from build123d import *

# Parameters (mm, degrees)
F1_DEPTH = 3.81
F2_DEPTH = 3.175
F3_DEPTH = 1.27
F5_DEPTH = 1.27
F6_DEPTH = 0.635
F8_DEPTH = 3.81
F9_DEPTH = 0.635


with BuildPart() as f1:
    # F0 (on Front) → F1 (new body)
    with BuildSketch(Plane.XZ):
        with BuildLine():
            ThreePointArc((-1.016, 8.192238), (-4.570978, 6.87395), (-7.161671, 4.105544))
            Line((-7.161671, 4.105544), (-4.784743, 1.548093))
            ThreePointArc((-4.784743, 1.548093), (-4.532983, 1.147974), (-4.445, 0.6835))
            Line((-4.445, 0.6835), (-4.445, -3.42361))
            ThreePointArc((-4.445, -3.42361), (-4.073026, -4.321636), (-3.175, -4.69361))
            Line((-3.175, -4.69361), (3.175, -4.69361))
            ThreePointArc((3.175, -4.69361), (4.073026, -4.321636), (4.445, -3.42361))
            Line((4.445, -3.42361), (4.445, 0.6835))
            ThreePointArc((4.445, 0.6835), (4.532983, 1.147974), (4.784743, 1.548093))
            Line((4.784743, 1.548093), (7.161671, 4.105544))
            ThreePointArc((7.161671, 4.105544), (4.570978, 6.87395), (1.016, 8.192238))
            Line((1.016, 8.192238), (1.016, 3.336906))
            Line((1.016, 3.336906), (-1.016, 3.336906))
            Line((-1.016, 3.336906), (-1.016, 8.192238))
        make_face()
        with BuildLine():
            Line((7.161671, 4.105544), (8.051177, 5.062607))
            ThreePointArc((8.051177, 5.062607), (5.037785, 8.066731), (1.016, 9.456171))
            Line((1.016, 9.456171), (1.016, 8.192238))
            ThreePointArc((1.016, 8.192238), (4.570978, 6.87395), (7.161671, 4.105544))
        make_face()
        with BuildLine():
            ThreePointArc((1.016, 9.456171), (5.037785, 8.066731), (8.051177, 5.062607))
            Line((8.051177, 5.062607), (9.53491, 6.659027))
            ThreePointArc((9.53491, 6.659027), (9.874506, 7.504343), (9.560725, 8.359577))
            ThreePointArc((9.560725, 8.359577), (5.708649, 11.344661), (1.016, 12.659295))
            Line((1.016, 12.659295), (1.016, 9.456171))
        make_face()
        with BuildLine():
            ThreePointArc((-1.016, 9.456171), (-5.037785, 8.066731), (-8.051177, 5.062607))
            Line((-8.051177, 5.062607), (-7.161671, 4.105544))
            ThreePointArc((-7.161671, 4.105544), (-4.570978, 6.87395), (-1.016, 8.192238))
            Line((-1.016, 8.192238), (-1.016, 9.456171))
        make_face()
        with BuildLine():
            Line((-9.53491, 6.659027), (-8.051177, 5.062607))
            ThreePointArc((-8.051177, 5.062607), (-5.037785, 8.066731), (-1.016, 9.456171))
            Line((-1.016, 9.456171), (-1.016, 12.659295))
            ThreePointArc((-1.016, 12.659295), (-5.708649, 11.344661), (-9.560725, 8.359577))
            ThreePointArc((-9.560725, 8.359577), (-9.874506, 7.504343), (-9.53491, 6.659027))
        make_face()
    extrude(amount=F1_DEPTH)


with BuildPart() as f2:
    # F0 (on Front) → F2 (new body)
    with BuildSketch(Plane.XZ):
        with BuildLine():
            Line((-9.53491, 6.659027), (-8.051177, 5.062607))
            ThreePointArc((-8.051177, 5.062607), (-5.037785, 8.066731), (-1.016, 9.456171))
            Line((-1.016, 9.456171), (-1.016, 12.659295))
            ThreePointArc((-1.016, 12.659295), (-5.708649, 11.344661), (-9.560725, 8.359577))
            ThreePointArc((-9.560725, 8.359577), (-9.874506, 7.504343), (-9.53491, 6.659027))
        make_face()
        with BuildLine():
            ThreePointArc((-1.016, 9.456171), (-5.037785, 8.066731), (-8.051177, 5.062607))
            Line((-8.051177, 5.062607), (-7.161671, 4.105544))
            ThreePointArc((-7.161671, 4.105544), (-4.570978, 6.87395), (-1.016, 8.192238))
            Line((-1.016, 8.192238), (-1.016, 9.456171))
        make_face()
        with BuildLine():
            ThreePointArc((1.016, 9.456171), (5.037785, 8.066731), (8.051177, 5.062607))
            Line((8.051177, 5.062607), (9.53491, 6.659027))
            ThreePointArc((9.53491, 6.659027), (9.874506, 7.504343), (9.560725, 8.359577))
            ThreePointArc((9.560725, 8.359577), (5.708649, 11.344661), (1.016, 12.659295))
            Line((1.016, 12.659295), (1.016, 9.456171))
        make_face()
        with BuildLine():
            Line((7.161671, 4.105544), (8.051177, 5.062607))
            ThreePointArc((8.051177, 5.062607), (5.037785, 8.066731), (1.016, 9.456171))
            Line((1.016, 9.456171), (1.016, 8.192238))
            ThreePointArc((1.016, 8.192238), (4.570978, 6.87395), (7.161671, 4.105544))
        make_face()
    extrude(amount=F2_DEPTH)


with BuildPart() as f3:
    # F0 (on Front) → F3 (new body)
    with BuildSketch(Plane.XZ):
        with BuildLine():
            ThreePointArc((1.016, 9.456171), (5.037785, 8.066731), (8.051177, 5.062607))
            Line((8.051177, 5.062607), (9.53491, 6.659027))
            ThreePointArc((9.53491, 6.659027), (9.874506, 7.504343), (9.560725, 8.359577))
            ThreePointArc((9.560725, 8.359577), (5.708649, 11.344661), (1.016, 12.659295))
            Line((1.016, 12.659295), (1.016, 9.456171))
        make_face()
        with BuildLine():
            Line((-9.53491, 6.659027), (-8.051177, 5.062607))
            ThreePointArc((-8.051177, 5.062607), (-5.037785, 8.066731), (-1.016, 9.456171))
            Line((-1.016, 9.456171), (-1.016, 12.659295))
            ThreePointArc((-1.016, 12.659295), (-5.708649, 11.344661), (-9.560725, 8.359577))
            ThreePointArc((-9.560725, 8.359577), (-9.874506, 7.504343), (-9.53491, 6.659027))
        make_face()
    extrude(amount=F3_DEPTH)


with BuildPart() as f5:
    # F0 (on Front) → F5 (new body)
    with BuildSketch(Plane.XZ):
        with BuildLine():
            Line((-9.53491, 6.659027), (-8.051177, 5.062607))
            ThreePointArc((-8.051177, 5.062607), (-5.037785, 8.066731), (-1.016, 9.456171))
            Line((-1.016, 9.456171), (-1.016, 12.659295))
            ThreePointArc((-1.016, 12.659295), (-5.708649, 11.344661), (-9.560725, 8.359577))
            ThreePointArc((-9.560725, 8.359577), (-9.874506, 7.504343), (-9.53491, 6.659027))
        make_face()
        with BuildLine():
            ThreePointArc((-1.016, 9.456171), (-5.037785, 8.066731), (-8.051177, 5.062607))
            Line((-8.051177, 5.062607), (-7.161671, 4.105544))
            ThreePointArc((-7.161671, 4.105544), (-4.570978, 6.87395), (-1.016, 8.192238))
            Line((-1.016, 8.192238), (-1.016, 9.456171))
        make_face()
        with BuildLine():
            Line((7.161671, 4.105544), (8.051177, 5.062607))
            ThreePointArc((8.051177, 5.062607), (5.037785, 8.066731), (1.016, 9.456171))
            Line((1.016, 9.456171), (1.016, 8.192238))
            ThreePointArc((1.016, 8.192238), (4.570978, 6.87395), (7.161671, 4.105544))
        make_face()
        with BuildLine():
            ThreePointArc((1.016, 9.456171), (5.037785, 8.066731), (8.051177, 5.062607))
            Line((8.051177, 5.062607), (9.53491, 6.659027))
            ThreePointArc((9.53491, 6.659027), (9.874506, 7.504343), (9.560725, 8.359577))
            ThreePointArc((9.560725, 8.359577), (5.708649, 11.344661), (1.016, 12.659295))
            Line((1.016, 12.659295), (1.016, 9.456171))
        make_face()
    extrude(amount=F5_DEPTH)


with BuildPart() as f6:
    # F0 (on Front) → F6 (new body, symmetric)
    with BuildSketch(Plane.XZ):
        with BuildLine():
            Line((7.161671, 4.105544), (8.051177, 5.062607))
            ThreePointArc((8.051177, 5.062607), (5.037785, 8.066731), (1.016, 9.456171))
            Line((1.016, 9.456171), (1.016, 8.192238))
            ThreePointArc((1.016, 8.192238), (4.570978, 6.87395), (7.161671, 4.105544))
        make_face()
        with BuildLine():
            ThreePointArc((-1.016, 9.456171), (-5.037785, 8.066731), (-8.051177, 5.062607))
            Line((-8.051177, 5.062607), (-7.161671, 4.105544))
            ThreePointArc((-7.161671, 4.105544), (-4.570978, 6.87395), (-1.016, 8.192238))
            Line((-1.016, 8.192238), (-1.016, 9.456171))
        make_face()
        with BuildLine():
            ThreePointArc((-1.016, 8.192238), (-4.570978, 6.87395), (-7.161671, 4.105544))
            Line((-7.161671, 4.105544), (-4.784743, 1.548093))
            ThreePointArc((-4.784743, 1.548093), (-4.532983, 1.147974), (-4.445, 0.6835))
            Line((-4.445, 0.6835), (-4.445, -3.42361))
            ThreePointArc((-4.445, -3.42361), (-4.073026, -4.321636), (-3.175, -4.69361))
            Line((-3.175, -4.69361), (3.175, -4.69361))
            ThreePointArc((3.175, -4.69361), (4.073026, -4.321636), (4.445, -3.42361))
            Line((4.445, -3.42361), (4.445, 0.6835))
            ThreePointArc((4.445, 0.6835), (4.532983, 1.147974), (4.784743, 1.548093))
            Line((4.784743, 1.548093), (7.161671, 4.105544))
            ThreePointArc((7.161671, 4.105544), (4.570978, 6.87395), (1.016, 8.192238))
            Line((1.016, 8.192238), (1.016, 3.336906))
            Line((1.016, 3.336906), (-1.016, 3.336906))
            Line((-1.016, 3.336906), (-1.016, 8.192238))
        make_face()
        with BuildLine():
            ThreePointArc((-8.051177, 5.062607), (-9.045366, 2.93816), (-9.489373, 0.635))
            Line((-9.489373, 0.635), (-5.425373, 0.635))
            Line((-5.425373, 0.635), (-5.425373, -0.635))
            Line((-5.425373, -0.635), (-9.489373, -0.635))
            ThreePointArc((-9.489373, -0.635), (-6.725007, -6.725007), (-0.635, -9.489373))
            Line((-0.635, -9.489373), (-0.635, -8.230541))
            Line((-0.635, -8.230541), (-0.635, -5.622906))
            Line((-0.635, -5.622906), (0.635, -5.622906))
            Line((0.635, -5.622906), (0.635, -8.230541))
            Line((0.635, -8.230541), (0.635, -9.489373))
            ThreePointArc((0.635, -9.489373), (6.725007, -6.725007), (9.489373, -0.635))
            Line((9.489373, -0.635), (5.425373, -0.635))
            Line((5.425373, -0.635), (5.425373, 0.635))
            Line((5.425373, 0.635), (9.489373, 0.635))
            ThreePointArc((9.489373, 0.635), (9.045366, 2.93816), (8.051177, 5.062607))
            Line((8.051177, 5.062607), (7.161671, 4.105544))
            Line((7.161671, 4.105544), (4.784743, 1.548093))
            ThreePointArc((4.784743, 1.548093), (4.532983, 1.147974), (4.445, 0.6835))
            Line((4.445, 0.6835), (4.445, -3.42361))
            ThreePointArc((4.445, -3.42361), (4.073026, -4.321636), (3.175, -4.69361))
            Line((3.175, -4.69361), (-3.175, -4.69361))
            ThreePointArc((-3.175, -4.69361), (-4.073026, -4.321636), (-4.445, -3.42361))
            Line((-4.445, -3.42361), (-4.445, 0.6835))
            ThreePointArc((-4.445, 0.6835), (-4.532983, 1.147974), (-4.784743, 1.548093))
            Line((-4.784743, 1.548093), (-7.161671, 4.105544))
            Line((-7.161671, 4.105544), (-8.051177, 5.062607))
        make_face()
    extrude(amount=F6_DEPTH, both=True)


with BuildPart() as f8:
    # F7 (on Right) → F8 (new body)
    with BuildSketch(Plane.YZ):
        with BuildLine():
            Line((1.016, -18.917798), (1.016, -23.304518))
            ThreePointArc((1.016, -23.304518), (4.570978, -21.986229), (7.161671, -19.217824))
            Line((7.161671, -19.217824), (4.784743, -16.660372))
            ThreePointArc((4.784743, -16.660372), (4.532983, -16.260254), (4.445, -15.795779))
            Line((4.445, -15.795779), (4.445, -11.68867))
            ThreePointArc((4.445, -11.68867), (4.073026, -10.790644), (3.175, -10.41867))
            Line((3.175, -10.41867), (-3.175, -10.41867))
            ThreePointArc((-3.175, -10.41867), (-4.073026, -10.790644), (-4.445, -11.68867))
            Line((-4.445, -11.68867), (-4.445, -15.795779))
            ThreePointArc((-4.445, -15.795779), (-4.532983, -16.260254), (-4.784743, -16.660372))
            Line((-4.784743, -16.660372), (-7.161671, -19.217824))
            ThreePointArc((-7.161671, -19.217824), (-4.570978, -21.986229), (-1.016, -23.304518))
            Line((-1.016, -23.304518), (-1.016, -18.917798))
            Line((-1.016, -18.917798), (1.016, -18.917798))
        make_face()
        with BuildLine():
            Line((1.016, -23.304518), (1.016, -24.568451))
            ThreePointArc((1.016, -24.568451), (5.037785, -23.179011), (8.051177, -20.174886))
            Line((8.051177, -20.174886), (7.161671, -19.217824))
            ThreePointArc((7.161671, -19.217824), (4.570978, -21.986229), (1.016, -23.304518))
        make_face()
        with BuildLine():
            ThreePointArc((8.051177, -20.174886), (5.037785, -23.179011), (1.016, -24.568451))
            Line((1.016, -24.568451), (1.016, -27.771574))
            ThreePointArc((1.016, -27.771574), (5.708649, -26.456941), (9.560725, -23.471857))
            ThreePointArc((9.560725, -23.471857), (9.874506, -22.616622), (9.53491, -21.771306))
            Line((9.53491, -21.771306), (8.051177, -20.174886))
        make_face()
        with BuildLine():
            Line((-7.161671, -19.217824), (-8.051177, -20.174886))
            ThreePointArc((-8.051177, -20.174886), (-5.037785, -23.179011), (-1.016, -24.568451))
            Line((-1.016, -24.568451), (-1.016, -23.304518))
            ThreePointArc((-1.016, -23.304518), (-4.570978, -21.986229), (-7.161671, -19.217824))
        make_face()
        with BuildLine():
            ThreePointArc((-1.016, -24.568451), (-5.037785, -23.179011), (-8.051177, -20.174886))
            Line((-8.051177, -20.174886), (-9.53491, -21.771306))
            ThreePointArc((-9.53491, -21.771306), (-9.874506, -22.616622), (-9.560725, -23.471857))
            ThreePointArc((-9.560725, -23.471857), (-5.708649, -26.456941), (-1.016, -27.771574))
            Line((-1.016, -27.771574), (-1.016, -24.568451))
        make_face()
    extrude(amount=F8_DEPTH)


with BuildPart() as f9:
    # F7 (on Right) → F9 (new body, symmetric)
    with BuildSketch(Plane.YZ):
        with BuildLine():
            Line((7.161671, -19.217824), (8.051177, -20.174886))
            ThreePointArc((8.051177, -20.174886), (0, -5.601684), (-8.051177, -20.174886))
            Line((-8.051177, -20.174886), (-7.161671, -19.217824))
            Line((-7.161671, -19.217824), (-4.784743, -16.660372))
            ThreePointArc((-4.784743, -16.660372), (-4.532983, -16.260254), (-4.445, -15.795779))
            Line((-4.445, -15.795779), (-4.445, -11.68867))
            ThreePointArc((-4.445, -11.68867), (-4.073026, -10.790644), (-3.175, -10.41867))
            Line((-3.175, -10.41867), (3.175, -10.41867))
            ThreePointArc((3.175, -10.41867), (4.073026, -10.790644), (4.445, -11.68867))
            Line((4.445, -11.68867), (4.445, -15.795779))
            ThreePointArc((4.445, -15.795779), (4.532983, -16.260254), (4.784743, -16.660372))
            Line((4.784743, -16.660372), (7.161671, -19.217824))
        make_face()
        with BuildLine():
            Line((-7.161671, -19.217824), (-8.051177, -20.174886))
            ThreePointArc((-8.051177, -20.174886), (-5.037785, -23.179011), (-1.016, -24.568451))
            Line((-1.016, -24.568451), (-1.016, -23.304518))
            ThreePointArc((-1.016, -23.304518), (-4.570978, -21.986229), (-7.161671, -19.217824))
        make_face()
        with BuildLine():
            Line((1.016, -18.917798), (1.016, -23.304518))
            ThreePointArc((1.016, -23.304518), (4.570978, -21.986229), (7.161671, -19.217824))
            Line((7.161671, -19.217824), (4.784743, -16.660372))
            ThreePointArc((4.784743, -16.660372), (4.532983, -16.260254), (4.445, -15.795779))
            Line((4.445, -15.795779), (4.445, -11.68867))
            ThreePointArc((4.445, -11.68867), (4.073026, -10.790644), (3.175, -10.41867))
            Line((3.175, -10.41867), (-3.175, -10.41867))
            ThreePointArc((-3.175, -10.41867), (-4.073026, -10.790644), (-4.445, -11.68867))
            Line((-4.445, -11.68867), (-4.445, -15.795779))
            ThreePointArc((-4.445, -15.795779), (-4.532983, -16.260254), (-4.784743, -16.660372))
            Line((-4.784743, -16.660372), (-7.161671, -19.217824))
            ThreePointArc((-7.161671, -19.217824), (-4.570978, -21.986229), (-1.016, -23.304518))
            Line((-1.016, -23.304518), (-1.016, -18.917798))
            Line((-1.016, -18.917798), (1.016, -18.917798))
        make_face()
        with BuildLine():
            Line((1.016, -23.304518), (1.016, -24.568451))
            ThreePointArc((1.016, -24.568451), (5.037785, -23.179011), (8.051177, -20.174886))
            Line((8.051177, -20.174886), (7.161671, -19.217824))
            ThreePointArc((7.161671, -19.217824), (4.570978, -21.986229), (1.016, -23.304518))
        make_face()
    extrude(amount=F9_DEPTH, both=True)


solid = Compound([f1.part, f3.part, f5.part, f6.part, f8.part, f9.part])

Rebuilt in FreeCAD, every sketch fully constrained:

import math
import FreeCAD as App
import Part
import Sketcher
from FreeCAD import Vector
Q = App.Units.Quantity

doc = App.newDocument("Part")
body = doc.addObject("PartDesign::Body", "Body")

sketch1 = doc.addObject("Sketcher::SketchObject", "Sketch")
body.addObject(sketch1)
sketch1.AttachmentSupport = (doc.XZ_Plane, [""])
sketch1.MapMode = "FlatFace"
sketch1.addGeometry([
    Part.LineSegment(Vector(-7.2, 4.1, 0), Vector(-4.8, 1.5, 0)),
    Part.ArcOfCircle(Part.Circle(Vector(-5.7, 0.7, 0), Vector(0, 0, 1), 1.3), math.radians(0), math.radians(43)),
    Part.LineSegment(Vector(-4.4, 0.7, 0), Vector(-4.4, -3.4, 0)),
    Part.ArcOfCircle(Part.Circle(Vector(-3.2, -3.4, 0), Vector(0, 0, 1), 1.3), math.radians(180), math.radians(270)),
    Part.LineSegment(Vector(-3.2, -4.7, 0), Vector(3.2, -4.7, 0)),
    Part.ArcOfCircle(Part.Circle(Vector(3.2, -3.4, 0), Vector(0, 0, 1), 1.3), math.radians(-90), math.radians(0)),
    Part.LineSegment(Vector(4.4, -3.4, 0), Vector(4.4, 0.7, 0)),
    Part.ArcOfCircle(Part.Circle(Vector(5.7, 0.7, 0), Vector(0, 0, 1), 1.3), math.radians(137), math.radians(180)),
    Part.LineSegment(Vector(4.8, 1.5, 0), Vector(7.2, 4.1, 0)),
    Part.LineSegment(Vector(7.2, 4.1, 0), Vector(8.1, 5.1, 0)),
    Part.LineSegment(Vector(8.1, 5.1, 0), Vector(9.5, 6.7, 0)),
    Part.ArcOfCircle(Part.Circle(Vector(8.6, 7.5, 0), Vector(0, 0, 1), 1.3), math.radians(-43), math.radians(41)),
    Part.ArcOfCircle(Part.Circle(Vector(0, 0, 0), Vector(0, 0, 1), 12.7), math.radians(41), math.radians(85)),
    Part.LineSegment(Vector(1, 12.7, 0), Vector(1, 3.3, 0)),
    Part.LineSegment(Vector(1, 3.3, 0), Vector(-1, 3.3, 0)),
    Part.LineSegment(Vector(-1, 3.3, 0), Vector(-1, 12.7, 0)),
    Part.ArcOfCircle(Part.Circle(Vector(0, 0, 0), Vector(0, 0, 1), 12.7), math.radians(95), math.radians(139)),
    Part.ArcOfCircle(Part.Circle(Vector(-8.6, 7.5, 0), Vector(0, 0, 1), 1.3), math.radians(139), math.radians(223)),
    Part.LineSegment(Vector(-9.5, 6.7, 0), Vector(-8.1, 5.1, 0)),
    Part.LineSegment(Vector(-8.1, 5.1, 0), Vector(-7.2, 4.1, 0)),
], False)
sketch1.addConstraint([
    Sketcher.Constraint("Tangent", 0, 2, 1, 2),
    Sketcher.Constraint("Tangent", 1, 1, 2, 1),
    Sketcher.Constraint("Tangent", 2, 2, 3, 1),
    Sketcher.Constraint("Tangent", 3, 2, 4, 1),
    Sketcher.Constraint("Tangent", 4, 2, 5, 1),
    Sketcher.Constraint("Tangent", 5, 2, 6, 1),
    Sketcher.Constraint("Tangent", 6, 2, 7, 2),
    Sketcher.Constraint("Tangent", 7, 1, 8, 1),
    Sketcher.Constraint("Coincident", 8, 2, 9, 1),
    Sketcher.Constraint("Coincident", 9, 2, 10, 1),
    Sketcher.Constraint("Tangent", 10, 2, 11, 1),
    Sketcher.Constraint("Tangent", 11, 2, 12, 1),
    Sketcher.Constraint("Coincident", 12, 2, 13, 1),
    Sketcher.Constraint("Coincident", 13, 2, 14, 1),
    Sketcher.Constraint("Coincident", 14, 2, 15, 1),
    Sketcher.Constraint("Coincident", 15, 2, 16, 1),
    Sketcher.Constraint("Tangent", 16, 2, 17, 1),
    Sketcher.Constraint("Tangent", 17, 2, 18, 1),
    Sketcher.Constraint("Coincident", 18, 2, 19, 1),
    Sketcher.Constraint("Coincident", 19, 2, 0, 1),
    Sketcher.Constraint("Vertical", 2),
    Sketcher.Constraint("Horizontal", 4),
    Sketcher.Constraint("Vertical", 6),
    Sketcher.Constraint("Vertical", 13),
    Sketcher.Constraint("Horizontal", 14),
    Sketcher.Constraint("Vertical", 15),
    Sketcher.Constraint("Coincident", 12, 3, -1, 1),
    Sketcher.Constraint("Coincident", 16, 3, -1, 1),
    Sketcher.Constraint("Equal", 3, 5),
    Sketcher.Constraint("Equal", 1, 7),
    Sketcher.Constraint("Equal", 5, 11),
    Sketcher.Constraint("Equal", 12, 16),
    Sketcher.Constraint("Equal", 11, 17),
    Sketcher.Constraint("Symmetric", 1, 3, 7, 3, -2),
    Sketcher.Constraint("Symmetric", 10, 2, 17, 2, -2),
    Sketcher.Constraint("Symmetric", 8, 2, 19, 2, -2),
    Sketcher.Constraint("Parallel", 8, 9),
    Sketcher.Constraint("Parallel", 9, 10),
    Sketcher.Constraint("Horizontal", 12, 2, 15, 2),
    Sketcher.Constraint("Horizontal", 9, 2, 18, 2),
    Sketcher.Constraint("Radius", 12, Q("0.4999998 in")),
    Sketcher.Constraint("Radius", 1, Q("0.0499998 in")),
    Sketcher.Constraint("Radius", 3, Q("0.0499999 in")),
    Sketcher.Constraint("DistanceX", 4, 1, 4, 2, Q("0.25 in")),
    Sketcher.Constraint("DistanceX", 14, 2, 14, 1, Q("0.08 in")),
    Sketcher.Constraint("DistanceY", 2, 2, 2, 1, Q("4.10711 mm")),
    Sketcher.Constraint("DistanceY", 13, 2, 13, 1, Q("9.322389 mm")),
    Sketcher.Constraint("DistanceY", -1, 1, 1, 3, Q("0.683501 mm")),
    Sketcher.Constraint("DistanceY", -1, 1, 11, 3, Q("7.52362 mm")),
    Sketcher.Constraint("DistanceX", -1, 1, 8, 2, Q("7.161671 mm")),
    Sketcher.Constraint("DistanceX", 7, 3, 9, 2, Q("2.336181 mm")),
])
pad1 = doc.addObject("PartDesign::Pad", "Pad")
body.addObject(pad1)
pad1.Profile = sketch1
pad1.Length = Q("0.15 in")
body2 = doc.addObject("PartDesign::Body", "Body001")
body2.AllowCompound = True

sketch2 = doc.addObject("Sketcher::SketchObject", "Sketch001")
body2.addObject(sketch2)
sketch2.AttachmentSupport = (doc.getObject("XZ_Plane001"), [""])
sketch2.MapMode = "FlatFace"
sketch2.addGeometry([
    Part.LineSegment(Vector(-9.5, 6.7, 0), Vector(-8.1, 5.1, 0)),
    Part.LineSegment(Vector(-8.1, 5.1, 0), Vector(-7.2, 4.1, 0)),
    Part.ArcOfCircle(Part.Circle(Vector(0, 0, 0), Vector(0, 0, 1), 8.3), math.radians(97), math.radians(150)),
    Part.LineSegment(Vector(-1, 8.2, 0), Vector(-1, 12.7, 0)),
    Part.ArcOfCircle(Part.Circle(Vector(0, 0, 0), Vector(0, 0, 1), 12.7), math.radians(95), math.radians(139)),
    Part.ArcOfCircle(Part.Circle(Vector(-8.6, 7.5, 0), Vector(0, 0, 1), 1.3), math.radians(139), math.radians(223)),
    Part.LineSegment(Vector(8.1, 5.1, 0), Vector(9.5, 6.7, 0)),
    Part.ArcOfCircle(Part.Circle(Vector(8.6, 7.5, 0), Vector(0, 0, 1), 1.3), math.radians(-43), math.radians(41)),
    Part.ArcOfCircle(Part.Circle(Vector(0, 0, 0), Vector(0, 0, 1), 12.7), math.radians(41), math.radians(85)),
    Part.LineSegment(Vector(1, 12.7, 0), Vector(1, 8.2, 0)),
    Part.ArcOfCircle(Part.Circle(Vector(0, 0, 0), Vector(0, 0, 1), 8.3), math.radians(30), math.radians(83)),
    Part.LineSegment(Vector(7.2, 4.1, 0), Vector(8.1, 5.1, 0)),
], False)
sketch2.addConstraint([
    Sketcher.Constraint("Coincident", 0, 2, 1, 1),
    Sketcher.Constraint("Coincident", 1, 2, 2, 2),
    Sketcher.Constraint("Coincident", 2, 1, 3, 1),
    Sketcher.Constraint("Coincident", 3, 2, 4, 1),
    Sketcher.Constraint("Tangent", 4, 2, 5, 1),
    Sketcher.Constraint("Tangent", 5, 2, 0, 1),
    Sketcher.Constraint("Tangent", 6, 2, 7, 1),
    Sketcher.Constraint("Tangent", 7, 2, 8, 1),
    Sketcher.Constraint("Coincident", 8, 2, 9, 1),
    Sketcher.Constraint("Coincident", 9, 2, 10, 2),
    Sketcher.Constraint("Coincident", 10, 1, 11, 1),
    Sketcher.Constraint("Coincident", 11, 2, 6, 1),
    Sketcher.Constraint("Vertical", 3),
    Sketcher.Constraint("Vertical", 9),
    Sketcher.Constraint("Coincident", 2, 3, -1, 1),
    Sketcher.Constraint("Coincident", 4, 3, -1, 1),
    Sketcher.Constraint("Coincident", 8, 3, -1, 1),
    Sketcher.Constraint("Coincident", 10, 3, -1, 1),
    Sketcher.Constraint("Equal", 5, 7),
    Sketcher.Constraint("Equal", 4, 8),
    Sketcher.Constraint("Equal", 2, 10),
    Sketcher.Constraint("Symmetric", 5, 2, 6, 2, -2),
    Sketcher.Constraint("Parallel", 0, 1),
    Sketcher.Constraint("Parallel", 6, 11),
    Sketcher.Constraint("Horizontal", 3, 2, 8, 2),
    Sketcher.Constraint("Horizontal", 0, 2, 11, 2),
    Sketcher.Constraint("Radius", 4, Q("0.4999998 in")),
    Sketcher.Constraint("Radius", 5, Q("0.05 in")),
    Sketcher.Constraint("Radius", 2, Q("0.3249998 in")),
    Sketcher.Constraint("DistanceX", 2, 1, -1, 1, Q("0.04 in")),
    Sketcher.Constraint("DistanceY", -1, 1, 5, 3, Q("7.52362 mm")),
    Sketcher.Constraint("DistanceX", 1, 2, -1, 1, Q("7.161671 mm")),
    Sketcher.Constraint("DistanceX", 0, 2, 8, 3, Q("8.051178 mm")),
])
pad2 = doc.addObject("PartDesign::Pad", "Pad001")
body2.addObject(pad2)
pad2.Profile = sketch2
pad2.Length = Q("0.125 in")
body3 = doc.addObject("PartDesign::Body", "Body002")
body3.AllowCompound = True

sketch3 = doc.addObject("Sketcher::SketchObject", "Sketch002")
body3.addObject(sketch3)
sketch3.AttachmentSupport = (doc.getObject("XZ_Plane002"), [""])
sketch3.MapMode = "FlatFace"
sketch3.addGeometry([
    Part.ArcOfCircle(Part.Circle(Vector(0, 0, 0), Vector(0, 0, 1), 9.5), math.radians(32), math.radians(84)),
    Part.LineSegment(Vector(8.1, 5.1, 0), Vector(9.5, 6.7, 0)),
    Part.ArcOfCircle(Part.Circle(Vector(8.6, 7.5, 0), Vector(0, 0, 1), 1.3), math.radians(-43), math.radians(41)),
    Part.ArcOfCircle(Part.Circle(Vector(0, 0, 0), Vector(0, 0, 1), 12.7), math.radians(41), math.radians(85)),
    Part.LineSegment(Vector(1, 12.7, 0), Vector(1, 9.5, 0)),
    Part.LineSegment(Vector(-9.5, 6.7, 0), Vector(-8.1, 5.1, 0)),
    Part.ArcOfCircle(Part.Circle(Vector(0, 0, 0), Vector(0, 0, 1), 9.5), math.radians(96), math.radians(148)),
    Part.LineSegment(Vector(-1, 9.5, 0), Vector(-1, 12.7, 0)),
    Part.ArcOfCircle(Part.Circle(Vector(0, 0, 0), Vector(0, 0, 1), 12.7), math.radians(95), math.radians(139)),
    Part.ArcOfCircle(Part.Circle(Vector(-8.6, 7.5, 0), Vector(0, 0, 1), 1.3), math.radians(139), math.radians(223)),
], False)
sketch3.addConstraint([
    Sketcher.Constraint("Coincident", 0, 1, 1, 1),
    Sketcher.Constraint("Tangent", 1, 2, 2, 1),
    Sketcher.Constraint("Tangent", 2, 2, 3, 1),
    Sketcher.Constraint("Coincident", 3, 2, 4, 1),
    Sketcher.Constraint("Coincident", 4, 2, 0, 2),
    Sketcher.Constraint("Coincident", 5, 2, 6, 2),
    Sketcher.Constraint("Coincident", 6, 1, 7, 1),
    Sketcher.Constraint("Coincident", 7, 2, 8, 1),
    Sketcher.Constraint("Tangent", 8, 2, 9, 1),
    Sketcher.Constraint("Tangent", 9, 2, 5, 1),
    Sketcher.Constraint("Vertical", 4),
    Sketcher.Constraint("Vertical", 7),
    Sketcher.Constraint("Coincident", 0, 3, -1, 1),
    Sketcher.Constraint("Coincident", 3, 3, -1, 1),
    Sketcher.Constraint("Coincident", 6, 3, -1, 1),
    Sketcher.Constraint("Coincident", 8, 3, -1, 1),
    Sketcher.Constraint("Equal", 0, 6),
    Sketcher.Constraint("Equal", 3, 8),
    Sketcher.Constraint("Equal", 2, 9),
    Sketcher.Constraint("Symmetric", 1, 2, 9, 2, -2),
    Sketcher.Constraint("Horizontal", 4, 2, 6, 1),
    Sketcher.Constraint("Radius", 3, Q("0.4999998 in")),
    Sketcher.Constraint("Radius", 2, Q("0.05 in")),
    Sketcher.Constraint("DistanceX", -1, 1, 3, 2, Q("0.04 in")),
    Sketcher.Constraint("Radius", 0, Q("9.510599 mm")),
    Sketcher.Constraint("DistanceY", -1, 1, 2, 3, Q("7.52362 mm")),
    Sketcher.Constraint("DistanceX", -1, 1, 1, 2, Q("9.53491 mm")),
])
pad3 = doc.addObject("PartDesign::Pad", "Pad002")
body3.addObject(pad3)
pad3.Profile = sketch3
pad3.Length = Q("0.05 in")
body4 = doc.addObject("PartDesign::Body", "Body003")
body4.AllowCompound = True

sketch4 = doc.addObject("Sketcher::SketchObject", "Sketch003")
body4.addObject(sketch4)
sketch4.AttachmentSupport = (doc.getObject("XZ_Plane003"), [""])
sketch4.MapMode = "FlatFace"
sketch4.addGeometry([
    Part.LineSegment(Vector(-9.5, 6.7, 0), Vector(-8.1, 5.1, 0)),
    Part.LineSegment(Vector(-8.1, 5.1, 0), Vector(-7.2, 4.1, 0)),
    Part.ArcOfCircle(Part.Circle(Vector(0, 0, 0), Vector(0, 0, 1), 8.3), math.radians(97), math.radians(150)),
    Part.LineSegment(Vector(-1, 8.2, 0), Vector(-1, 12.7, 0)),
    Part.ArcOfCircle(Part.Circle(Vector(0, 0, 0), Vector(0, 0, 1), 12.7), math.radians(95), math.radians(139)),
    Part.ArcOfCircle(Part.Circle(Vector(-8.6, 7.5, 0), Vector(0, 0, 1), 1.3), math.radians(139), math.radians(223)),
    Part.LineSegment(Vector(7.2, 4.1, 0), Vector(8.1, 5.1, 0)),
    Part.LineSegment(Vector(8.1, 5.1, 0), Vector(9.5, 6.7, 0)),
    Part.ArcOfCircle(Part.Circle(Vector(8.6, 7.5, 0), Vector(0, 0, 1), 1.3), math.radians(-43), math.radians(41)),
    Part.ArcOfCircle(Part.Circle(Vector(0, 0, 0), Vector(0, 0, 1), 12.7), math.radians(41), math.radians(85)),
    Part.LineSegment(Vector(1, 12.7, 0), Vector(1, 8.2, 0)),
    Part.ArcOfCircle(Part.Circle(Vector(0, 0, 0), Vector(0, 0, 1), 8.3), math.radians(30), math.radians(83)),
], False)
sketch4.addConstraint([
    Sketcher.Constraint("Coincident", 0, 2, 1, 1),
    Sketcher.Constraint("Coincident", 1, 2, 2, 2),
    Sketcher.Constraint("Coincident", 2, 1, 3, 1),
    Sketcher.Constraint("Coincident", 3, 2, 4, 1),
    Sketcher.Constraint("Tangent", 4, 2, 5, 1),
    Sketcher.Constraint("Tangent", 5, 2, 0, 1),
    Sketcher.Constraint("Coincident", 6, 2, 7, 1),
    Sketcher.Constraint("Tangent", 7, 2, 8, 1),
    Sketcher.Constraint("Tangent", 8, 2, 9, 1),
    Sketcher.Constraint("Coincident", 9, 2, 10, 1),
    Sketcher.Constraint("Coincident", 10, 2, 11, 2),
    Sketcher.Constraint("Coincident", 11, 1, 6, 1),
    Sketcher.Constraint("Vertical", 3),
    Sketcher.Constraint("Vertical", 10),
    Sketcher.Constraint("Coincident", 2, 3, -1, 1),
    Sketcher.Constraint("Coincident", 4, 3, -1, 1),
    Sketcher.Constraint("Coincident", 9, 3, -1, 1),
    Sketcher.Constraint("Coincident", 11, 3, -1, 1),
    Sketcher.Constraint("Equal", 5, 8),
    Sketcher.Constraint("Equal", 4, 9),
    Sketcher.Constraint("Equal", 2, 11),
    Sketcher.Constraint("Symmetric", 0, 2, 6, 2, -2),
    Sketcher.Constraint("Parallel", 0, 1),
    Sketcher.Constraint("Parallel", 6, 7),
    Sketcher.Constraint("Horizontal", 5, 3, 8, 3),
    Sketcher.Constraint("Horizontal", 3, 2, 9, 2),
    Sketcher.Constraint("Radius", 4, Q("0.4999998 in")),
    Sketcher.Constraint("Radius", 5, Q("0.05 in")),
    Sketcher.Constraint("Radius", 2, Q("0.3249998 in")),
    Sketcher.Constraint("DistanceX", 2, 1, -1, 1, Q("0.04 in")),
    Sketcher.Constraint("DistanceY", -1, 1, 5, 3, Q("7.52362 mm")),
    Sketcher.Constraint("DistanceX", 1, 2, -1, 1, Q("7.161671 mm")),
    Sketcher.Constraint("DistanceX", 0, 2, 9, 3, Q("8.051178 mm")),
])
pad4 = doc.addObject("PartDesign::Pad", "Pad003")
body4.addObject(pad4)
pad4.Profile = sketch4
pad4.Length = Q("0.05 in")
body5 = doc.addObject("PartDesign::Body", "Body004")

sketch5 = doc.addObject("Sketcher::SketchObject", "Sketch004")
body5.addObject(sketch5)
sketch5.AttachmentSupport = (doc.getObject("XZ_Plane004"), [""])
sketch5.MapMode = "FlatFace"
sketch5.addGeometry([
    Part.ArcOfCircle(Part.Circle(Vector(0, 0, 0), Vector(0, 0, 1), 9.5), math.radians(32), math.radians(84)),
    Part.LineSegment(Vector(1, 9.5, 0), Vector(1, 3.3, 0)),
    Part.LineSegment(Vector(1, 3.3, 0), Vector(-1, 3.3, 0)),
    Part.LineSegment(Vector(-1, 3.3, 0), Vector(-1, 9.5, 0)),
    Part.ArcOfCircle(Part.Circle(Vector(0, 0, 0), Vector(0, 0, 1), 9.5), math.radians(96), math.radians(148)),
    Part.ArcOfCircle(Part.Circle(Vector(0, 0, 0), Vector(0, 0, 1), 9.5), math.radians(148), math.radians(176)),
    Part.LineSegment(Vector(-9.5, 0.6, 0), Vector(-5.4, 0.6, 0)),
    Part.LineSegment(Vector(-5.4, 0.6, 0), Vector(-5.4, -0.6, 0)),
    Part.LineSegment(Vector(-5.4, -0.6, 0), Vector(-9.5, -0.6, 0)),
    Part.ArcOfCircle(Part.Circle(Vector(0, 0, 0), Vector(0, 0, 1), 9.5), math.radians(-176), math.radians(-94)),
    Part.LineSegment(Vector(-0.6, -9.5, 0), Vector(-0.6, -5.6, 0)),
    Part.LineSegment(Vector(-0.6, -5.6, 0), Vector(0.6, -5.6, 0)),
    Part.LineSegment(Vector(0.6, -5.6, 0), Vector(0.6, -9.5, 0)),
    Part.ArcOfCircle(Part.Circle(Vector(0, 0, 0), Vector(0, 0, 1), 9.5), math.radians(-86), math.radians(-4)),
    Part.LineSegment(Vector(9.5, -0.6, 0), Vector(5.4, -0.6, 0)),
    Part.LineSegment(Vector(5.4, -0.6, 0), Vector(5.4, 0.6, 0)),
    Part.LineSegment(Vector(5.4, 0.6, 0), Vector(9.5, 0.6, 0)),
    Part.ArcOfCircle(Part.Circle(Vector(0, 0, 0), Vector(0, 0, 1), 9.5), math.radians(4), math.radians(32)),
], False)
sketch5.addConstraint([
    Sketcher.Constraint("Coincident", 0, 2, 1, 1),
    Sketcher.Constraint("Coincident", 1, 2, 2, 1),
    Sketcher.Constraint("Coincident", 2, 2, 3, 1),
    Sketcher.Constraint("Coincident", 3, 2, 4, 1),
    Sketcher.Constraint("Tangent", 4, 2, 5, 1),
    Sketcher.Constraint("Coincident", 5, 2, 6, 1),
    Sketcher.Constraint("Coincident", 6, 2, 7, 1),
    Sketcher.Constraint("Coincident", 7, 2, 8, 1),
    Sketcher.Constraint("Coincident", 8, 2, 9, 1),
    Sketcher.Constraint("Coincident", 9, 2, 10, 1),
    Sketcher.Constraint("Coincident", 10, 2, 11, 1),
    Sketcher.Constraint("Coincident", 11, 2, 12, 1),
    Sketcher.Constraint("Coincident", 12, 2, 13, 1),
    Sketcher.Constraint("Coincident", 13, 2, 14, 1),
    Sketcher.Constraint("Coincident", 14, 2, 15, 1),
    Sketcher.Constraint("Coincident", 15, 2, 16, 1),
    Sketcher.Constraint("Coincident", 16, 2, 17, 1),
    Sketcher.Constraint("Tangent", 17, 2, 0, 1),
    Sketcher.Constraint("Vertical", 1),
    Sketcher.Constraint("Horizontal", 2),
    Sketcher.Constraint("Vertical", 3),
    Sketcher.Constraint("Horizontal", 6),
    Sketcher.Constraint("Vertical", 7),
    Sketcher.Constraint("Horizontal", 8),
    Sketcher.Constraint("Vertical", 10),
    Sketcher.Constraint("Horizontal", 11),
    Sketcher.Constraint("Vertical", 12),
    Sketcher.Constraint("Horizontal", 14),
    Sketcher.Constraint("Vertical", 15),
    Sketcher.Constraint("Horizontal", 16),
    Sketcher.Constraint("Coincident", 0, 3, -1, 1),
    Sketcher.Constraint("Coincident", 4, 3, -1, 1),
    Sketcher.Constraint("Coincident", 9, 3, -1, 1),
    Sketcher.Constraint("Coincident", 13, 3, -1, 1),
    Sketcher.Constraint("Equal", 0, 4),
    Sketcher.Constraint("Equal", 4, 5),
    Sketcher.Constraint("Equal", 9, 13),
    Sketcher.Constraint("Equal", 5, 17),
    Sketcher.Constraint("Symmetric", 5, 2, 13, 2, -1, 1),
    Sketcher.Constraint("Symmetric", 7, 2, 15, 2, -1, 1),
    Sketcher.Constraint("Horizontal", 0, 2, 3, 2),
    Sketcher.Constraint("Horizontal", 9, 2, 12, 2),
    Sketcher.Constraint("Horizontal", 8, 2, 13, 2),
    Sketcher.Constraint("Horizontal", 4, 2, 17, 2),
    Sketcher.Constraint("Equal", 11, 7),
    Sketcher.Constraint("DistanceX", 2, 2, 2, 1, Q("0.08 in")),
    Sketcher.Constraint("DistanceX", 6, 1, 6, 2, Q("0.16 in")),
    Sketcher.Constraint("DistanceX", 11, 1, 11, 2, Q("0.05 in")),
    Sketcher.Constraint("Radius", 0, Q("9.510599 mm")),
    Sketcher.Constraint("DistanceY", 2, 2, 4, 2, Q("1.725701 mm")),
    Sketcher.Constraint("DistanceY", 1, 2, 1, 1, Q("6.119265 mm")),
    Sketcher.Constraint("DistanceY", 10, 1, 10, 2, Q("3.866467 mm")),
])
pad5 = doc.addObject("PartDesign::Pad", "Pad004")
body5.addObject(pad5)
pad5.Profile = sketch5
pad5.Length = Q("0.05 in")
pad5.Midplane = True
body6 = doc.addObject("PartDesign::Body", "Body005")

sketch6 = doc.addObject("Sketcher::SketchObject", "Sketch005")
body6.addObject(sketch6)
sketch6.AttachmentSupport = (doc.getObject("YZ_Plane005"), [""])
sketch6.MapMode = "FlatFace"
sketch6.addGeometry([
    Part.LineSegment(Vector(1, -18.9, 0), Vector(1, -27.8, 0)),
    Part.ArcOfCircle(Part.Circle(Vector(0, -15.1, 0), Vector(0, 0, 1), 12.7), math.radians(-85), math.radians(-41)),
    Part.ArcOfCircle(Part.Circle(Vector(8.6, -22.6, 0), Vector(0, 0, 1), 1.3), math.radians(-41), math.radians(43)),
    Part.LineSegment(Vector(9.5, -21.8, 0), Vector(8.1, -20.2, 0)),
    Part.LineSegment(Vector(8.1, -20.2, 0), Vector(7.2, -19.2, 0)),
    Part.LineSegment(Vector(7.2, -19.2, 0), Vector(4.8, -16.7, 0)),
    Part.ArcOfCircle(Part.Circle(Vector(5.7, -15.8, 0), Vector(0, 0, 1), 1.3), math.radians(180), math.radians(223)),
    Part.LineSegment(Vector(4.4, -15.8, 0), Vector(4.4, -11.7, 0)),
    Part.ArcOfCircle(Part.Circle(Vector(3.2, -11.7, 0), Vector(0, 0, 1), 1.3), math.radians(0), math.radians(90)),
    Part.LineSegment(Vector(3.2, -10.4, 0), Vector(-3.2, -10.4, 0)),
    Part.ArcOfCircle(Part.Circle(Vector(-3.2, -11.7, 0), Vector(0, 0, 1), 1.3), math.radians(90), math.radians(180)),
    Part.LineSegment(Vector(-4.4, -11.7, 0), Vector(-4.4, -15.8, 0)),
    Part.ArcOfCircle(Part.Circle(Vector(-5.7, -15.8, 0), Vector(0, 0, 1), 1.3), math.radians(-43), math.radians(0)),
    Part.LineSegment(Vector(-4.8, -16.7, 0), Vector(-7.2, -19.2, 0)),
    Part.LineSegment(Vector(-7.2, -19.2, 0), Vector(-8.1, -20.2, 0)),
    Part.LineSegment(Vector(-8.1, -20.2, 0), Vector(-9.5, -21.8, 0)),
    Part.ArcOfCircle(Part.Circle(Vector(-8.6, -22.6, 0), Vector(0, 0, 1), 1.3), math.radians(137), math.radians(221)),
    Part.ArcOfCircle(Part.Circle(Vector(0, -15.1, 0), Vector(0, 0, 1), 12.7), math.radians(-139), math.radians(-95)),
    Part.LineSegment(Vector(-1, -27.8, 0), Vector(-1, -18.9, 0)),
    Part.LineSegment(Vector(-1, -18.9, 0), Vector(1, -18.9, 0)),
], False)
sketch6.addConstraint([
    Sketcher.Constraint("Coincident", 0, 2, 1, 1),
    Sketcher.Constraint("Tangent", 1, 2, 2, 1),
    Sketcher.Constraint("Tangent", 2, 2, 3, 1),
    Sketcher.Constraint("Coincident", 3, 2, 4, 1),
    Sketcher.Constraint("Coincident", 4, 2, 5, 1),
    Sketcher.Constraint("Coincident", 5, 2, 6, 2),
    Sketcher.Constraint("Coincident", 6, 1, 7, 1),
    Sketcher.Constraint("Tangent", 7, 2, 8, 1),
    Sketcher.Constraint("Tangent", 8, 2, 9, 1),
    Sketcher.Constraint("Tangent", 9, 2, 10, 1),
    Sketcher.Constraint("Tangent", 10, 2, 11, 1),
    Sketcher.Constraint("Coincident", 11, 2, 12, 2),
    Sketcher.Constraint("Coincident", 12, 1, 13, 1),
    Sketcher.Constraint("Coincident", 13, 2, 14, 1),
    Sketcher.Constraint("Coincident", 14, 2, 15, 1),
    Sketcher.Constraint("Tangent", 15, 2, 16, 1),
    Sketcher.Constraint("Tangent", 16, 2, 17, 1),
    Sketcher.Constraint("Coincident", 17, 2, 18, 1),
    Sketcher.Constraint("Coincident", 18, 2, 19, 1),
    Sketcher.Constraint("Coincident", 19, 2, 0, 1),
    Sketcher.Constraint("Vertical", 0),
    Sketcher.Constraint("Vertical", 7),
    Sketcher.Constraint("Horizontal", 9),
    Sketcher.Constraint("Vertical", 11),
    Sketcher.Constraint("Vertical", 18),
    Sketcher.Constraint("Horizontal", 19),
    Sketcher.Constraint("Equal", 8, 10),
    Sketcher.Constraint("Equal", 6, 12),
    Sketcher.Constraint("Equal", 2, 16),
    Sketcher.Constraint("Equal", 1, 17),
    Sketcher.Constraint("Symmetric", 6, 3, 12, 3, -2),
    Sketcher.Constraint("Symmetric", 2, 3, 16, 3, -2),
    Sketcher.Constraint("Symmetric", 4, 2, 13, 2, -2),
    Sketcher.Constraint("Symmetric", 3, 2, 14, 2, -2),
    Sketcher.Constraint("Symmetric", 0, 2, 17, 2, -2),
    Sketcher.Constraint("Parallel", 3, 4),
    Sketcher.Constraint("Parallel", 4, 5),
    Sketcher.Constraint("Horizontal", 6, 1, 11, 2),
    Sketcher.Constraint("Horizontal", 5, 2, 12, 1),
    Sketcher.Constraint("Radius", 2, Q("0.05 in")),
    Sketcher.Constraint("Radius", 8, Q("0.0499999 in")),
    Sketcher.Constraint("DistanceX", 9, 2, 9, 1, Q("0.25 in")),
    Sketcher.Constraint("DistanceX", 19, 1, 19, 2, Q("0.08 in")),
    Sketcher.Constraint("Radius", 1, Q("12.699989 mm")),
    Sketcher.Constraint("Radius", 6, Q("1.269991 mm")),
    Sketcher.Constraint("DistanceX", 1, 3, 8, 3, Q("0.1249998 in")),
    Sketcher.Constraint("DistanceY", 7, 1, 7, 2, Q("4.107109 mm")),
    Sketcher.Constraint("DistanceY", 2, 3, -1, 1, Q("22.635899 mm")),
    Sketcher.Constraint("DistanceY", 18, 2, -1, 1, Q("18.917798 mm")),
    Sketcher.Constraint("DistanceY", 5, 2, 7, 2, Q("4.971702 mm")),
    Sketcher.Constraint("DistanceY", 0, 2, 0, 1, Q("8.853776 mm")),
    Sketcher.Constraint("DistanceY", 6, 3, -1, 1, Q("15.795782 mm")),
    Sketcher.Constraint("DistanceY", 8, 3, -1, 1, Q("11.688669 mm")),
    Sketcher.Constraint("DistanceX", -1, 1, 4, 2, Q("7.161671 mm")),
    Sketcher.Constraint("DistanceY", 2, 2, 3, 2, Q("1.59642 mm")),
])
pad6 = doc.addObject("PartDesign::Pad", "Pad005")
body6.addObject(pad6)
pad6.Profile = sketch6
pad6.Length = Q("0.15 in")
body7 = doc.addObject("PartDesign::Body", "Body006")

sketch7 = doc.addObject("Sketcher::SketchObject", "Sketch006")
body7.addObject(sketch7)
sketch7.AttachmentSupport = (doc.getObject("YZ_Plane006"), [""])
sketch7.MapMode = "FlatFace"
sketch7.addGeometry([
    Part.ArcOfCircle(Part.Circle(Vector(0, -15.1, 0), Vector(0, 0, 1), 9.5), math.radians(-32), math.radians(212)),
    Part.ArcOfCircle(Part.Circle(Vector(0, -15.1, 0), Vector(0, 0, 1), 9.5), math.radians(-148), math.radians(-96)),
    Part.LineSegment(Vector(-1, -24.6, 0), Vector(-1, -18.9, 0)),
    Part.LineSegment(Vector(-1, -18.9, 0), Vector(1, -18.9, 0)),
    Part.LineSegment(Vector(1, -18.9, 0), Vector(1, -24.6, 0)),
    Part.ArcOfCircle(Part.Circle(Vector(0, -15.1, 0), Vector(0, 0, 1), 9.5), math.radians(-84), math.radians(-32)),
], False)
sketch7.addConstraint([
    Sketcher.Constraint("Tangent", 0, 2, 1, 1),
    Sketcher.Constraint("Coincident", 1, 2, 2, 1),
    Sketcher.Constraint("Coincident", 2, 2, 3, 1),
    Sketcher.Constraint("Coincident", 3, 2, 4, 1),
    Sketcher.Constraint("Coincident", 4, 2, 5, 1),
    Sketcher.Constraint("Tangent", 5, 2, 0, 1),
    Sketcher.Constraint("Vertical", 2),
    Sketcher.Constraint("Horizontal", 3),
    Sketcher.Constraint("Vertical", 4),
    Sketcher.Constraint("Equal", 0, 1),
    Sketcher.Constraint("Equal", 1, 5),
    Sketcher.Constraint("Symmetric", 1, 2, 4, 2, -2),
    Sketcher.Constraint("Horizontal", 0, 2, 5, 2),
    Sketcher.Constraint("DistanceX", 3, 1, 3, 2, Q("0.08 in")),
    Sketcher.Constraint("Radius", 0, Q("9.510596 mm")),
    Sketcher.Constraint("DistanceY", 2, 2, -1, 1, Q("18.917798 mm")),
    Sketcher.Constraint("DistanceY", 2, 1, 2, 2, Q("5.650653 mm")),
    Sketcher.Constraint("DistanceY", 5, 2, 3, 2, Q("1.257088 mm")),
])
pad7 = doc.addObject("PartDesign::Pad", "Pad006")
body7.addObject(pad7)
pad7.Profile = sketch7
pad7.Length = Q("0.05 in")
pad7.Midplane = True
body2.Visibility = False

doc.recompute()
